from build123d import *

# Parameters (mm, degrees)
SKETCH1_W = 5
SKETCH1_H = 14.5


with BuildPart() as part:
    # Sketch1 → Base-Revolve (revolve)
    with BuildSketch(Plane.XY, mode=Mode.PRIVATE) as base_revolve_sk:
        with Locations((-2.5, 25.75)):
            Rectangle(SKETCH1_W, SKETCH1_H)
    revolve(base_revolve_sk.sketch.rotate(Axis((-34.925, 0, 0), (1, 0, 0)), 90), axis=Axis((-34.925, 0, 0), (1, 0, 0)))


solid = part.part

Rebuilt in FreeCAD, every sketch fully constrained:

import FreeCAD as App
import Part
import Sketcher
from FreeCAD import Vector


def add_polygon(sketch, points):
    """Adds a closed chain of lines whose ends are joined by coincident constraints."""
    first, n = sketch.GeometryCount, len(points)
    for a, b in zip(points, points[1:] + points[:1]):
        sketch.addGeometry(Part.LineSegment(App.Vector(*a, 0), App.Vector(*b, 0)), False)
    for i in range(n):
        sketch.addConstraint(Sketcher.Constraint("Coincident", first + i, 2, first + (i + 1) % n, 1))

doc = App.newDocument("Part")
body = doc.addObject("PartDesign::Body", "Body")

sketch1 = body.newObject("Sketcher::SketchObject", "Sketch")
sketch1.AttachmentSupport = (doc.getObject("XY_Plane"), [""])
sketch1.MapMode = "FlatFace"
add_polygon(sketch1, [(-5, 33), (-5, 18.5), (0, 18.5), (0, 33)])
sketch1.addConstraint([
    Sketcher.Constraint("Vertical", 0),
    Sketcher.Constraint("Horizontal", 1),
    Sketcher.Constraint("Vertical", 2),
    Sketcher.Constraint("Horizontal", 3),
    Sketcher.Constraint("PointOnObject", 1, 2, -2),
    Sketcher.Constraint("DistanceX", 1, 1, 1, 2, 5.0),
    Sketcher.Constraint("DistanceY", 0, 2, 0, 1, 14.5),
    Sketcher.Constraint("DistanceY", -1, 1, 2, 2, 33.0),
])
revolution = body.newObject("PartDesign::Revolution", "Revolution")
revolution.Profile = sketch1
revolution.ReferenceAxis = (sketch1, ["H_Axis"])
revolution.Angle = 360

doc.recompute()
